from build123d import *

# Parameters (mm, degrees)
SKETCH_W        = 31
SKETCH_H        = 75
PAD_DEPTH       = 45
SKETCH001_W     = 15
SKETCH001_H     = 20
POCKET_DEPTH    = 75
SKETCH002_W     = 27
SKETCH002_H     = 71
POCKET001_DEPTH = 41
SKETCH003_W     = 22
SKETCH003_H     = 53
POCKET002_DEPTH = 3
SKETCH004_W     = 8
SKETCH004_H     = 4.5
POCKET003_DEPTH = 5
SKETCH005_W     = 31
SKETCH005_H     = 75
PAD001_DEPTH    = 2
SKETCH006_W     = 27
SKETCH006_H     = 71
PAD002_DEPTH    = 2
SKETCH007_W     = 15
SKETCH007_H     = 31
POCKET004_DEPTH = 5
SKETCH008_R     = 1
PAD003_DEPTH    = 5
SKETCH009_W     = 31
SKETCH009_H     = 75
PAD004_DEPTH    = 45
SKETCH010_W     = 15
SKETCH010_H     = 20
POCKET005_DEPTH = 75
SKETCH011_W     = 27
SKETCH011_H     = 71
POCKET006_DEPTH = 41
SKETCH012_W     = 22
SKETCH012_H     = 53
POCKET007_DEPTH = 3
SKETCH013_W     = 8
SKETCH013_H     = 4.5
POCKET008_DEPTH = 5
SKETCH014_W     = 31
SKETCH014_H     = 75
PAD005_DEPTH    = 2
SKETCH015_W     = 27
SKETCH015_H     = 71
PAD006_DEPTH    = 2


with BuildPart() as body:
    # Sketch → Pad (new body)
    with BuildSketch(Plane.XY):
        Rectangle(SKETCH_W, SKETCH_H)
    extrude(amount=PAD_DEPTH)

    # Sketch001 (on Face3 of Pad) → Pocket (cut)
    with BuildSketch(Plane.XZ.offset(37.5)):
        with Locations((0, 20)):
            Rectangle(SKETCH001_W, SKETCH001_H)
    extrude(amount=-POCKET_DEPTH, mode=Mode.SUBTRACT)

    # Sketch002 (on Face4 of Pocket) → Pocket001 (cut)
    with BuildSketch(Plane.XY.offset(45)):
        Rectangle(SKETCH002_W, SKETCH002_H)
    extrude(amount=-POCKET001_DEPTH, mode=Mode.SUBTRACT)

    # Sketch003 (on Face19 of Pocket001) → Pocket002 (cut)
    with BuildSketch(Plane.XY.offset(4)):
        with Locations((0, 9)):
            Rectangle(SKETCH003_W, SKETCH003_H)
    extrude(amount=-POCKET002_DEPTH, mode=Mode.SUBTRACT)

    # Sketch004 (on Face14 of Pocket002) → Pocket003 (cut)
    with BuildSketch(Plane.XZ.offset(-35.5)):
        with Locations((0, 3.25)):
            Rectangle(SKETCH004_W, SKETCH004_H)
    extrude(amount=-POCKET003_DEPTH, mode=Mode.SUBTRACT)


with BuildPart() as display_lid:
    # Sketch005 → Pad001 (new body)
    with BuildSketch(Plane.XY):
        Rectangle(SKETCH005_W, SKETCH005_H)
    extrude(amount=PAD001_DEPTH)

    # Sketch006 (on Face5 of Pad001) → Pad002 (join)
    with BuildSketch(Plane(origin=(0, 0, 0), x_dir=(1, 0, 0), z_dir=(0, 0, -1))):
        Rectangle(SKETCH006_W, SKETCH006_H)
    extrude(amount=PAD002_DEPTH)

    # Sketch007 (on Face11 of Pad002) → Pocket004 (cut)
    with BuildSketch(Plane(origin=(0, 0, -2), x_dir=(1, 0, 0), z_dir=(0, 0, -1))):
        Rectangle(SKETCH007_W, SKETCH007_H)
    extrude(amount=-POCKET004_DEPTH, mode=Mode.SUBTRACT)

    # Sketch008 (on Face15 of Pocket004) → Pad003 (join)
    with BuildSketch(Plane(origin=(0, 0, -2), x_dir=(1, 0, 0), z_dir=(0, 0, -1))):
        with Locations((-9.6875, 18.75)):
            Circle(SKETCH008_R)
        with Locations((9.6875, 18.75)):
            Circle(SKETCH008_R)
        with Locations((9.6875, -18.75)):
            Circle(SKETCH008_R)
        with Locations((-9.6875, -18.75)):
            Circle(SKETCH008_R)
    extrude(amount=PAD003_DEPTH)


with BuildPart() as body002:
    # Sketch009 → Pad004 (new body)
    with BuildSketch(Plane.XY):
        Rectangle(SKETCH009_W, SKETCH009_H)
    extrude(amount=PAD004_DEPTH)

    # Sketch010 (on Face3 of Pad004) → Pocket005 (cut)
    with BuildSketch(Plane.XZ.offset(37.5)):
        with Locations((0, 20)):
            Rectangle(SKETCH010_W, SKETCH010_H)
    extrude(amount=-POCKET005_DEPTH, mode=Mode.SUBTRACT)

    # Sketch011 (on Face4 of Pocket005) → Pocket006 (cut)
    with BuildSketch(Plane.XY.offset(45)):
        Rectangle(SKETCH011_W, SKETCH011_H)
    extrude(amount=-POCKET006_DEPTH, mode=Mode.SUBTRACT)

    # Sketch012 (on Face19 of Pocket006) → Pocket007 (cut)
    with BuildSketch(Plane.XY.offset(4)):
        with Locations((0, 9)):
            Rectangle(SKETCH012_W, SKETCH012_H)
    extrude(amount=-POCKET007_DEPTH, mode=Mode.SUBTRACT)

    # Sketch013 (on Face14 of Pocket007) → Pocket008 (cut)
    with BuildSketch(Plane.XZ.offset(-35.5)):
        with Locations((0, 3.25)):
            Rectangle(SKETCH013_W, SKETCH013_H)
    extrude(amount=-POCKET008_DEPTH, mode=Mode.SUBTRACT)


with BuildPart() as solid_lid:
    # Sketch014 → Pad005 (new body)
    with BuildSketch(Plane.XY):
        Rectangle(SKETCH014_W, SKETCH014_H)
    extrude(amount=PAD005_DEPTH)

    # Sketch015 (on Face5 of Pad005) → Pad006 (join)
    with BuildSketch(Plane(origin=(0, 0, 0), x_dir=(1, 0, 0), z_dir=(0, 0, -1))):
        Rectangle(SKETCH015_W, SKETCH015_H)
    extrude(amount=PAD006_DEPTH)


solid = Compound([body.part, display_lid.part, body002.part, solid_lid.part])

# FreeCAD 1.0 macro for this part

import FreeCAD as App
import Part
import Sketcher
from FreeCAD import Vector


def add_polygon(sketch, points):
    """Adds a closed chain of lines whose ends are joined by coincident constraints."""
    first, n = sketch.GeometryCount, len(points)
    for a, b in zip(points, points[1:] + points[:1]):
        sketch.addGeometry(Part.LineSegment(App.Vector(*a, 0), App.Vector(*b, 0)), False)
    for i in range(n):
        sketch.addConstraint(Sketcher.Constraint("Coincident", first + i, 2, first + (i + 1) % n, 1))

doc = App.newDocument("Part")
params = doc.addObject("Spreadsheet::Sheet", "Params")
for row, (alias, value) in enumerate([
    ("sketch1_width", "31 mm"),
    ("sketch1_height", "75 mm"),
    ("pad1_length", "45 mm"),
    ("sketch2_width", "15 mm"),
    ("sketch2_height", "20 mm"),
    ("pocket1_length", "75 mm"),
    ("sketch3_width", "27 mm"),
    ("sketch3_height", "71 mm"),
    ("pocket2_length", "41 mm"),
    ("sketch4_width", "22 mm"),
    ("sketch4_height", "53 mm"),
    ("pocket3_length", "3 mm"),
    ("sketch5_width", "8 mm"),
    ("sketch5_height", "4.5 mm"),
    ("pocket4_length", "5 mm"),
    ("sketch6_width", "31 mm"),
    ("sketch6_height", "75 mm"),
    ("pad2_length", "2 mm"),
    ("sketch7_width", "27 mm"),
    ("sketch7_height", "71 mm"),
    ("pad3_length", "2 mm"),
    ("sketch8_width", "15 mm"),
    ("sketch8_height", "31 mm"),
    ("pocket5_length", "5 mm"),
    ("sketch9_diameter", "2 mm"),
    ("pad4_length", "5 mm"),
    ("sketch10_width", "31 mm"),
    ("sketch10_height", "75 mm"),
    ("pad5_length", "45 mm"),
    ("sketch11_width", "15 mm"),
    ("sketch11_height", "20 mm"),
    ("pocket6_length", "75 mm"),
    ("sketch12_width", "27 mm"),
    ("sketch12_height", "71 mm"),
    ("pocket7_length", "41 mm"),
    ("sketch13_width", "22 mm"),
    ("sketch13_height", "53 mm"),
    ("pocket8_length", "3 mm"),
    ("sketch14_width", "8 mm"),
    ("sketch14_height", "4.5 mm"),
    ("pocket9_length", "5 mm"),
    ("sketch15_width", "31 mm"),
    ("sketch15_height", "75 mm"),
    ("pad6_length", "2 mm"),
    ("sketch16_width", "27 mm"),
    ("sketch16_height", "71 mm"),
    ("pad7_length", "2 mm"),
], start=1):
    params.set(f"A{row}", alias)
    params.set(f"B{row}", "=" + value)
    params.setAlias(f"B{row}", alias)

body = doc.addObject("PartDesign::Body", "Body")

# Sketch on XY plane
sketch1 = body.newObject("Sketcher::SketchObject", "Sketch")
sketch1.AttachmentSupport = (doc.getObject("XY_Plane"), [""])
sketch1.MapMode = "FlatFace"
add_polygon(sketch1, [(-15.5, 37.5), (-15.5, -37.5), (15.5, -37.5), (15.5, 37.5)])  # lines 0-3
sketch1.addConstraint([
    Sketcher.Constraint("Vertical", 0),
    Sketcher.Constraint("Horizontal", 1),
    Sketcher.Constraint("Vertical", 2),
    Sketcher.Constraint("Horizontal", 3),
    Sketcher.Constraint("Symmetric", 0, 2, 2, 2, -1, 1),
    Sketcher.Constraint("DistanceX", 1, 1, 1, 2, 31.0),
    Sketcher.Constraint("DistanceY", 0, 2, 0, 1, 75.0),
])
sketch1.setExpression("Constraints[9]", "Params.sketch1_width")
sketch1.setExpression("Constraints[10]", "Params.sketch1_height")
pad1 = body.newObject("PartDesign::Pad", "Pad")
pad1.Profile = sketch1
pad1.setExpression("Length", "Params.pad1_length")

# Sketch on XZ plane
sketch2 = body.newObject("Sketcher::SketchObject", "Sketch001")
sketch2.AttachmentSupport = (doc.getObject("XZ_Plane"), [""])
sketch2.MapMode = "FlatFace"
sketch2.AttachmentOffset = App.Placement(Vector(0, 0, 37.5), App.Rotation())
add_polygon(sketch2, [(-7.5, 30), (-7.5, 10), (7.5, 10), (7.5, 30)])  # lines 0-3
sketch2.addConstraint([
    Sketcher.Constraint("Vertical", 0),
    Sketcher.Constraint("Horizontal", 1),
    Sketcher.Constraint("Vertical", 2),
    Sketcher.Constraint("Horizontal", 3),
    Sketcher.Constraint("DistanceX", 1, 1, 1, 2, 15.0),
    Sketcher.Constraint("DistanceY", 0, 2, 0, 1, 20.0),
    Sketcher.Constraint("DistanceY", -1, 1, 0, 2, 10.0),
    Sketcher.Constraint("DistanceX", 0, 2, -1, 1, 7.5),
])
sketch2.setExpression("Constraints[8]", "Params.sketch2_width")
sketch2.setExpression("Constraints[9]", "Params.sketch2_height")
pocket1 = body.newObject("PartDesign::Pocket", "Pocket")
pocket1.Profile = sketch2
pocket1.setExpression("Length", "Params.pocket1_length")

# Sketch on XY plane
sketch3 = body.newObject("Sketcher::SketchObject", "Sketch002")
sketch3.AttachmentSupport = (doc.getObject("XY_Plane"), [""])
sketch3.MapMode = "FlatFace"
sketch3.AttachmentOffset = App.Placement(Vector(0, 0, 45), App.Rotation())
add_polygon(sketch3, [(-13.5, 35.5), (-13.5, -35.5), (13.5, -35.5), (13.5, 35.5)])  # lines 0-3
sketch3.addConstraint([
    Sketcher.Constraint("Vertical", 0),
    Sketcher.Constraint("Horizontal", 1),
    Sketcher.Constraint("Vertical", 2),
    Sketcher.Constraint("Horizontal", 3),
    Sketcher.Constraint("Symmetric", 0, 2, 2, 2, -1, 1),
    Sketcher.Constraint("DistanceX", 1, 1, 1, 2, 27.0),
    Sketcher.Constraint("DistanceY", 0, 2, 0, 1, 71.0),
])
sketch3.setExpression("Constraints[9]", "Params.sketch3_width")
sketch3.setExpression("Constraints[10]", "Params.sketch3_height")
pocket2 = body.newObject("PartDesign::Pocket", "Pocket001")
pocket2.Profile = sketch3
pocket2.setExpression("Length", "Params.pocket2_length")

# Sketch on XY plane
sketch4 = body.newObject("Sketcher::SketchObject", "Sketch003")
sketch4.AttachmentSupport = (doc.getObject("XY_Plane"), [""])
sketch4.MapMode = "FlatFace"
sketch4.AttachmentOffset = App.Placement(Vector(0, 0, 4), App.Rotation())
add_polygon(sketch4, [(-11, 35.5), (-11, -17.5), (11, -17.5), (11, 35.5)])  # lines 0-3
sketch4.addConstraint([
    Sketcher.Constraint("Vertical", 0),
    Sketcher.Constraint("Horizontal", 1),
    Sketcher.Constraint("Vertical", 2),
    Sketcher.Constraint("Horizontal", 3),
    Sketcher.Constraint("DistanceX", 1, 1, 1, 2, 22.0),
    Sketcher.Constraint("DistanceY", 0, 2, 0, 1, 53.0),
    Sketcher.Constraint("DistanceX", 0, 2, -1, 1, 11.0),
    Sketcher.Constraint("DistanceY", 0, 2, -1, 1, 17.5),
])
sketch4.setExpression("Constraints[8]", "Params.sketch4_width")
sketch4.setExpression("Constraints[9]", "Params.sketch4_height")
pocket3 = body.newObject("PartDesign::Pocket", "Pocket002")
pocket3.Profile = sketch4
pocket3.setExpression("Length", "Params.pocket3_length")

# Sketch on XZ plane
sketch5 = body.newObject("Sketcher::SketchObject", "Sketch004")
sketch5.AttachmentSupport = (doc.getObject("XZ_Plane"), [""])
sketch5.MapMode = "FlatFace"
sketch5.AttachmentOffset = App.Placement(Vector(0, 0, -35.5), App.Rotation())
add_polygon(sketch5, [(-4, 5.5), (-4, 1), (4, 1), (4, 5.5)])  # lines 0-3
sketch5.addConstraint([
    Sketcher.Constraint("Vertical", 0),
    Sketcher.Constraint("Horizontal", 1),
    Sketcher.Constraint("Vertical", 2),
    Sketcher.Constraint("Horizontal", 3),
    Sketcher.Constraint("DistanceX", 1, 1, 1, 2, 8.0),
    Sketcher.Constraint("DistanceY", 0, 2, 0, 1, 4.5),
    Sketcher.Constraint("DistanceX", 0, 2, -1, 1, 4.0),
    Sketcher.Constraint("DistanceY", -1, 1, 0, 2, 1.0),
])
sketch5.setExpression("Constraints[8]", "Params.sketch5_width")
sketch5.setExpression("Constraints[9]", "Params.sketch5_height")
pocket4 = body.newObject("PartDesign::Pocket", "Pocket003")
pocket4.Profile = sketch5
pocket4.setExpression("Length", "Params.pocket4_length")
body2 = doc.addObject("PartDesign::Body", "Body001")

# Sketch on XY plane
sketch6 = body2.newObject("Sketcher::SketchObject", "Sketch005")
sketch6.AttachmentSupport = (doc.getObject("XY_Plane001"), [""])
sketch6.MapMode = "FlatFace"
add_polygon(sketch6, [(-15.5, 37.5), (-15.5, -37.5), (15.5, -37.5), (15.5, 37.5)])  # lines 0-3
sketch6.addConstraint([
    Sketcher.Constraint("Vertical", 0),
    Sketcher.Constraint("Horizontal", 1),
    Sketcher.Constraint("Vertical", 2),
    Sketcher.Constraint("Horizontal", 3),
    Sketcher.Constraint("Symmetric", 0, 2, 2, 2, -1, 1),
    Sketcher.Constraint("DistanceX", 1, 1, 1, 2, 31.0),
    Sketcher.Constraint("DistanceY", 0, 2, 0, 1, 75.0),
])
sketch6.setExpression("Constraints[9]", "Params.sketch6_width")
sketch6.setExpression("Constraints[10]", "Params.sketch6_height")
pad2 = body2.newObject("PartDesign::Pad", "Pad001")
pad2.Profile = sketch6
pad2.setExpression("Length", "Params.pad2_length")

# Sketch on XY plane
sketch7 = body2.newObject("Sketcher::SketchObject", "Sketch006")
sketch7.AttachmentSupport = (doc.getObject("XY_Plane001"), [""])
sketch7.MapMode = "FlatFace"
add_polygon(sketch7, [(-13.5, -35.5), (-13.5, 35.5), (13.5, 35.5), (13.5, -35.5)])  # lines 0-3
sketch7.addConstraint([
    Sketcher.Constraint("Vertical", 0),
    Sketcher.Constraint("Horizontal", 1),
    Sketcher.Constraint("Vertical", 2),
    Sketcher.Constraint("Horizontal", 3),
    Sketcher.Constraint("Symmetric", 0, 2, 2, 2, -1, 1),
    Sketcher.Constraint("DistanceX", 1, 1, 1, 2, 27.0),
    Sketcher.Constraint("DistanceY", 0, 1, 0, 2, 71.0),
])
sketch7.setExpression("Constraints[9]", "Params.sketch7_width")
sketch7.setExpression("Constraints[10]", "Params.sketch7_height")
pad3 = body2.newObject("PartDesign::Pad", "Pad002")
pad3.Profile = sketch7
pad3.setExpression("Length", "Params.pad3_length")
pad3.Reversed = True

# Sketch on XY plane
sketch8 = body2.newObject("Sketcher::SketchObject", "Sketch007")
sketch8.AttachmentSupport = (doc.getObject("XY_Plane001"), [""])
sketch8.MapMode = "FlatFace"
sketch8.AttachmentOffset = App.Placement(Vector(0, 0, -2), App.Rotation())
add_polygon(sketch8, [(-7.5, -15.5), (-7.5, 15.5), (7.5, 15.5), (7.5, -15.5)])  # lines 0-3
sketch8.addConstraint([
    Sketcher.Constraint("Vertical", 0),
    Sketcher.Constraint("Horizontal", 1),
    Sketcher.Constraint("Vertical", 2),
    Sketcher.Constraint("Horizontal", 3),
    Sketcher.Constraint("Symmetric", 0, 2, 2, 2, -1, 1),
    Sketcher.Constraint("DistanceX", 1, 1, 1, 2, 15.0),
    Sketcher.Constraint("DistanceY", 0, 1, 0, 2, 31.0),
])
sketch8.setExpression("Constraints[9]", "Params.sketch8_width")
sketch8.setExpression("Constraints[10]", "Params.sketch8_height")
pocket5 = body2.newObject("PartDesign::Pocket", "Pocket004")
pocket5.Profile = sketch8
pocket5.setExpression("Length", "Params.pocket5_length")
pocket5.Reversed = True

# Sketch on XY plane
sketch9 = body2.newObject("Sketcher::SketchObject", "Sketch008")
sketch9.AttachmentSupport = (doc.getObject("XY_Plane001"), [""])
sketch9.MapMode = "FlatFace"
sketch9.AttachmentOffset = App.Placement(Vector(0, 0, -2), App.Rotation())
sketch9.addGeometry([
    Part.Circle(Vector(-9.6875, -18.75, 0), Vector(0, 0, 1), 1),
    Part.Circle(Vector(9.6875, -18.75, 0), Vector(0, 0, 1), 1),
    Part.Circle(Vector(9.6875, 18.75, 0), Vector(0, 0, 1), 1),
    Part.Circle(Vector(-9.6875, 18.75, 0), Vector(0, 0, 1), 1),
], False)
sketch9.addConstraint([
    Sketcher.Constraint("Equal", 0, 1),
    Sketcher.Constraint("Equal", 1, 2),
    Sketcher.Constraint("Equal", 2, 3),
    Sketcher.Constraint("Symmetric", 0, 3, 2, 3, -1, 1),
    Sketcher.Constraint("Symmetric", 1, 3, 3, 3, -1, 1),
    Sketcher.Constraint("Symmetric", 0, 3, 1, 3, -2),
    Sketcher.Constraint("Diameter", 0, 2.0),
    Sketcher.Constraint("DistanceY", 1, 3, 2, 3, 37.5),
    Sketcher.Constraint("DistanceX", 0, 3, 1, 3, 19.375),
])
sketch9.setExpression("Constraints[6]", "Params.sketch9_diameter")
pad4 = body2.newObject("PartDesign::Pad", "Pad003")
pad4.Profile = sketch9
pad4.setExpression("Length", "Params.pad4_length")
pad4.Reversed = True
body3 = doc.addObject("PartDesign::Body", "Body002")

# Sketch on XY plane
sketch10 = body3.newObject("Sketcher::SketchObject", "Sketch009")
sketch10.AttachmentSupport = (doc.getObject("XY_Plane002"), [""])
sketch10.MapMode = "FlatFace"
add_polygon(sketch10, [(-15.5, 37.5), (-15.5, -37.5), (15.5, -37.5), (15.5, 37.5)])  # lines 0-3
sketch10.addConstraint([
    Sketcher.Constraint("Vertical", 0),
    Sketcher.Constraint("Horizontal", 1),
    Sketcher.Constraint("Vertical", 2),
    Sketcher.Constraint("Horizontal", 3),
    Sketcher.Constraint("Symmetric", 0, 2, 2, 2, -1, 1),
    Sketcher.Constraint("DistanceX", 1, 1, 1, 2, 31.0),
    Sketcher.Constraint("DistanceY", 0, 2, 0, 1, 75.0),
])
sketch10.setExpression("Constraints[9]", "Params.sketch10_width")
sketch10.setExpression("Constraints[10]", "Params.sketch10_height")
pad5 = body3.newObject("PartDesign::Pad", "Pad004")
pad5.Profile = sketch10
pad5.setExpression("Length", "Params.pad5_length")

# Sketch on XZ plane
sketch11 = body3.newObject("Sketcher::SketchObject", "Sketch010")
sketch11.AttachmentSupport = (doc.getObject("XZ_Plane002"), [""])
sketch11.MapMode = "FlatFace"
sketch11.AttachmentOffset = App.Placement(Vector(0, 0, 37.5), App.Rotation())
add_polygon(sketch11, [(-7.5, 30), (-7.5, 10), (7.5, 10), (7.5, 30)])  # lines 0-3
sketch11.addConstraint([
    Sketcher.Constraint("Vertical", 0),
    Sketcher.Constraint("Horizontal", 1),
    Sketcher.Constraint("Vertical", 2),
    Sketcher.Constraint("Horizontal", 3),
    Sketcher.Constraint("DistanceX", 1, 1, 1, 2, 15.0),
    Sketcher.Constraint("DistanceY", 0, 2, 0, 1, 20.0),
    Sketcher.Constraint("DistanceY", -1, 1, 0, 2, 10.0),
    Sketcher.Constraint("DistanceX", 0, 2, -1, 1, 7.5),
])
sketch11.setExpression("Constraints[8]", "Params.sketch11_width")
sketch11.setExpression("Constraints[9]", "Params.sketch11_height")
pocket6 = body3.newObject("PartDesign::Pocket", "Pocket005")
pocket6.Profile = sketch11
pocket6.setExpression("Length", "Params.pocket6_length")

# Sketch on XY plane
sketch12 = body3.newObject("Sketcher::SketchObject", "Sketch011")
sketch12.AttachmentSupport = (doc.getObject("XY_Plane002"), [""])
sketch12.MapMode = "FlatFace"
sketch12.AttachmentOffset = App.Placement(Vector(0, 0, 45), App.Rotation())
add_polygon(sketch12, [(-13.5, 35.5), (-13.5, -35.5), (13.5, -35.5), (13.5, 35.5)])  # lines 0-3
sketch12.addConstraint([
    Sketcher.Constraint("Vertical", 0),
    Sketcher.Constraint("Horizontal", 1),
    Sketcher.Constraint("Vertical", 2),
    Sketcher.Constraint("Horizontal", 3),
    Sketcher.Constraint("Symmetric", 0, 2, 2, 2, -1, 1),
    Sketcher.Constraint("DistanceX", 1, 1, 1, 2, 27.0),
    Sketcher.Constraint("DistanceY", 0, 2, 0, 1, 71.0),
])
sketch12.setExpression("Constraints[9]", "Params.sketch12_width")
sketch12.setExpression("Constraints[10]", "Params.sketch12_height")
pocket7 = body3.newObject("PartDesign::Pocket", "Pocket006")
pocket7.Profile = sketch12
pocket7.setExpression("Length", "Params.pocket7_length")

# Sketch on XY plane
sketch13 = body3.newObject("Sketcher::SketchObject", "Sketch012")
sketch13.AttachmentSupport = (doc.getObject("XY_Plane002"), [""])
sketch13.MapMode = "FlatFace"
sketch13.AttachmentOffset = App.Placement(Vector(0, 0, 4), App.Rotation())
add_polygon(sketch13, [(-11, 35.5), (-11, -17.5), (11, -17.5), (11, 35.5)])  # lines 0-3
sketch13.addConstraint([
    Sketcher.Constraint("Vertical", 0),
    Sketcher.Constraint("Horizontal", 1),
    Sketcher.Constraint("Vertical", 2),
    Sketcher.Constraint("Horizontal", 3),
    Sketcher.Constraint("DistanceX", 1, 1, 1, 2, 22.0),
    Sketcher.Constraint("DistanceY", 0, 2, 0, 1, 53.0),
    Sketcher.Constraint("DistanceX", 0, 2, -1, 1, 11.0),
    Sketcher.Constraint("DistanceY", 0, 2, -1, 1, 17.5),
])
sketch13.setExpression("Constraints[8]", "Params.sketch13_width")
sketch13.setExpression("Constraints[9]", "Params.sketch13_height")
pocket8 = body3.newObject("PartDesign::Pocket", "Pocket007")
pocket8.Profile = sketch13
pocket8.setExpression("Length", "Params.pocket8_length")

# Sketch on XZ plane
sketch14 = body3.newObject("Sketcher::SketchObject", "Sketch013")
sketch14.AttachmentSupport = (doc.getObject("XZ_Plane002"), [""])
sketch14.MapMode = "FlatFace"
sketch14.AttachmentOffset = App.Placement(Vector(0, 0, -35.5), App.Rotation())
add_polygon(sketch14, [(-4, 5.5), (-4, 1), (4, 1), (4, 5.5)])  # lines 0-3
sketch14.addConstraint([
    Sketcher.Constraint("Vertical", 0),
    Sketcher.Constraint("Horizontal", 1),
    Sketcher.Constraint("Vertical", 2),
    Sketcher.Constraint("Horizontal", 3),
    Sketcher.Constraint("DistanceX", 1, 1, 1, 2, 8.0),
    Sketcher.Constraint("DistanceY", 0, 2, 0, 1, 4.5),
    Sketcher.Constraint("DistanceX", 0, 2, -1, 1, 4.0),
    Sketcher.Constraint("DistanceY", -1, 1, 0, 2, 1.0),
])
sketch14.setExpression("Constraints[8]", "Params.sketch14_width")
sketch14.setExpression("Constraints[9]", "Params.sketch14_height")
pocket9 = body3.newObject("PartDesign::Pocket", "Pocket008")
pocket9.Profile = sketch14
pocket9.setExpression("Length", "Params.pocket9_length")
body4 = doc.addObject("PartDesign::Body", "Body003")

# Sketch on XY plane
sketch15 = body4.newObject("Sketcher::SketchObject", "Sketch014")
sketch15.AttachmentSupport = (doc.getObject("XY_Plane003"), [""])
sketch15.MapMode = "FlatFace"
add_polygon(sketch15, [(-15.5, 37.5), (-15.5, -37.5), (15.5, -37.5), (15.5, 37.5)])  # lines 0-3
sketch15.addConstraint([
    Sketcher.Constraint("Vertical", 0),
    Sketcher.Constraint("Horizontal", 1),
    Sketcher.Constraint("Vertical", 2),
    Sketcher.Constraint("Horizontal", 3),
    Sketcher.Constraint("Symmetric", 0, 2, 2, 2, -1, 1),
    Sketcher.Constraint("DistanceX", 1, 1, 1, 2, 31.0),
    Sketcher.Constraint("DistanceY", 0, 2, 0, 1, 75.0),
])
sketch15.setExpression("Constraints[9]", "Params.sketch15_width")
sketch15.setExpression("Constraints[10]", "Params.sketch15_height")
pad6 = body4.newObject("PartDesign::Pad", "Pad005")
pad6.Profile = sketch15
pad6.setExpression("Length", "Params.pad6_length")

# Sketch on XY plane
sketch16 = body4.newObject("Sketcher::SketchObject", "Sketch015")
sketch16.AttachmentSupport = (doc.getObject("XY_Plane003"), [""])
sketch16.MapMode = "FlatFace"
add_polygon(sketch16, [(-13.5, -35.5), (-13.5, 35.5), (13.5, 35.5), (13.5, -35.5)])  # lines 0-3
sketch16.addConstraint([
    Sketcher.Constraint("Vertical", 0),
    Sketcher.Constraint("Horizontal", 1),
    Sketcher.Constraint("Vertical", 2),
    Sketcher.Constraint("Horizontal", 3),
    Sketcher.Constraint("Symmetric", 0, 2, 2, 2, -1, 1),
    Sketcher.Constraint("DistanceX", 1, 1, 1, 2, 27.0),
    Sketcher.Constraint("DistanceY", 0, 1, 0, 2, 71.0),
])
sketch16.setExpression("Constraints[9]", "Params.sketch16_width")
sketch16.setExpression("Constraints[10]", "Params.sketch16_height")
pad7 = body4.newObject("PartDesign::Pad", "Pad006")
pad7.Profile = sketch16
pad7.setExpression("Length", "Params.pad7_length")
pad7.Reversed = True

doc.recompute()
